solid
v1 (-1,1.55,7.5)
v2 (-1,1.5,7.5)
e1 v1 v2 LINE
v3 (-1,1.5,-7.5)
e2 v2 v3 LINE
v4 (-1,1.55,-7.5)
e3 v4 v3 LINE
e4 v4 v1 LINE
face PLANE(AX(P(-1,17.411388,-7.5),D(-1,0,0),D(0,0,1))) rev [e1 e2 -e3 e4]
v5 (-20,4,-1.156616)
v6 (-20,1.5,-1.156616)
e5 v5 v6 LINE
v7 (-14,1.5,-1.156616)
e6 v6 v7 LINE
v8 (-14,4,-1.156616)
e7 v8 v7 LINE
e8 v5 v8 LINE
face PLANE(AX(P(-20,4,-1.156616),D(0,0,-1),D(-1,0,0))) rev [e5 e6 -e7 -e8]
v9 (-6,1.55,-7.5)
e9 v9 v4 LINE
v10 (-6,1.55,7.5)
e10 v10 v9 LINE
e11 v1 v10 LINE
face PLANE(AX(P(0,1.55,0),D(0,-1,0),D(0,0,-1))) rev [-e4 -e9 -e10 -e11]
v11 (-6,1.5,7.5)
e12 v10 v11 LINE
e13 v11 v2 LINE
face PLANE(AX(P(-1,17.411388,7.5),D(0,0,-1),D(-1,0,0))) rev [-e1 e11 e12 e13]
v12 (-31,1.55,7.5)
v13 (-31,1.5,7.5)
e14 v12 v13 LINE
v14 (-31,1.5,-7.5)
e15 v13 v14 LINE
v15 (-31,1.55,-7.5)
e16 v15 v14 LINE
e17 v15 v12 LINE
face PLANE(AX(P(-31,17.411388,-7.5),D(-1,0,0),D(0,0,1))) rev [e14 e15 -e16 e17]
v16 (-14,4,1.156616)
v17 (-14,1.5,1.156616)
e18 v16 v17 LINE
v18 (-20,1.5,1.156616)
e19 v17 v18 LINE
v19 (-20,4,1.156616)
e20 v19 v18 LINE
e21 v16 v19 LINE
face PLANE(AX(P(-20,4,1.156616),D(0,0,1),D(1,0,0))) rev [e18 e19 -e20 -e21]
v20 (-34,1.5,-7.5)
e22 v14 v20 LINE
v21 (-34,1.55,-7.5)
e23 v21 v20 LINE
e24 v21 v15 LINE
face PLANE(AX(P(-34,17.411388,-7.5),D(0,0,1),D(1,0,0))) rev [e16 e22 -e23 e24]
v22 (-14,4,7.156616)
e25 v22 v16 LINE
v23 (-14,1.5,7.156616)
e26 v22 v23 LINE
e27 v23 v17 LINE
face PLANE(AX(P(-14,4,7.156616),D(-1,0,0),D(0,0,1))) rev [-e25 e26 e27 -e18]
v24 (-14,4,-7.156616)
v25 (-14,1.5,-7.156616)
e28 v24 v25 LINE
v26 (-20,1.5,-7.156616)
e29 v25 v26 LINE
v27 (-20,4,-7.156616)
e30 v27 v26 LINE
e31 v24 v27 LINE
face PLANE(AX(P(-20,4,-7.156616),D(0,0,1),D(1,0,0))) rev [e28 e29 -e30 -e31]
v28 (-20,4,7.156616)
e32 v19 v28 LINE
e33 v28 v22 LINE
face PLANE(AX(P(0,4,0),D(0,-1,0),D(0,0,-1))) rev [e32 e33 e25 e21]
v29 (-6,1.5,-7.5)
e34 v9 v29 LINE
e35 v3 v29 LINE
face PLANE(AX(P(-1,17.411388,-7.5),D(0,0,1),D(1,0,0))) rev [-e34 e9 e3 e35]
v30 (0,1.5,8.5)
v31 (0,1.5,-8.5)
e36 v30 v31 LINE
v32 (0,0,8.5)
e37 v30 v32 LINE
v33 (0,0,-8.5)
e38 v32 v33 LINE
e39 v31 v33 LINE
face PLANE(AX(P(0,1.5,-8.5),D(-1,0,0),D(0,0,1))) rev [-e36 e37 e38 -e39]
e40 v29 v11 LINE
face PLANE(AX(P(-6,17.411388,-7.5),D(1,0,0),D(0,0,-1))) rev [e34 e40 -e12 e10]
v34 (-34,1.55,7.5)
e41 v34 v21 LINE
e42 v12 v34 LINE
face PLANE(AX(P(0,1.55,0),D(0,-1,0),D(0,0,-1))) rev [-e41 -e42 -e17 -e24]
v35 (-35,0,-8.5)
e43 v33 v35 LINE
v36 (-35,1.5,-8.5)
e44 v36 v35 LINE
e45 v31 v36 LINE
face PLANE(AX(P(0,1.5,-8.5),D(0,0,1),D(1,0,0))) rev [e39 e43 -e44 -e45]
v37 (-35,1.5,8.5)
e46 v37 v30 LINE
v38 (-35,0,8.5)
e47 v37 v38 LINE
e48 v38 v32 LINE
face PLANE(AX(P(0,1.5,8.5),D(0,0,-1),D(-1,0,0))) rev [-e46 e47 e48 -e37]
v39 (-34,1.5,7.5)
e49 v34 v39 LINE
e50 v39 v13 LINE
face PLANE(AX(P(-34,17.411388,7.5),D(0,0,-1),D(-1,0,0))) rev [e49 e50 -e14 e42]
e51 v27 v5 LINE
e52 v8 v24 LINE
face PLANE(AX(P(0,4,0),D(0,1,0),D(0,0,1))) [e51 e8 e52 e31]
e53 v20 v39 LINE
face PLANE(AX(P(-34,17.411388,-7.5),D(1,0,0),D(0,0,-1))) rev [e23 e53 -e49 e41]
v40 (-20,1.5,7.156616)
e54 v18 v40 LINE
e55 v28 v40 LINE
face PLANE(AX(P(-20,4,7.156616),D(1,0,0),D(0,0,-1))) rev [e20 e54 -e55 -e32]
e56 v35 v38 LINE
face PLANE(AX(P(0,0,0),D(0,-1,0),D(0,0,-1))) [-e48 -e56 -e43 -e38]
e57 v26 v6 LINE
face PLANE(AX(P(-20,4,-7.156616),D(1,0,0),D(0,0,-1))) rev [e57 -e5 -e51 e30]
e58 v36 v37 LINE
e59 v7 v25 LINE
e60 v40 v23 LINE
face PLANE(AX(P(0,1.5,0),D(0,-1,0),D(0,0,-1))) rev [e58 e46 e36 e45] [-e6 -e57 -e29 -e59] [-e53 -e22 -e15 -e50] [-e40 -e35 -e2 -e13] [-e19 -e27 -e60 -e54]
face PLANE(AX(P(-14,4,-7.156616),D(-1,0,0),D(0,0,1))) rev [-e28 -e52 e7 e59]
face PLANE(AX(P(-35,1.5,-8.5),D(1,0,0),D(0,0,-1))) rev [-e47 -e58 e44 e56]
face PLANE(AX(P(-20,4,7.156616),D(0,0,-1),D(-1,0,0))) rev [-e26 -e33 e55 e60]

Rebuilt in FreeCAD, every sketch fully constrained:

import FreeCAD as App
import Part
import Sketcher
from FreeCAD import Vector
Q = App.Units.Quantity

doc = App.newDocument("Part")
body = doc.addObject("PartDesign::Body", "Body")

# Sketch on XZ plane
sketch1 = body.newObject("Sketcher::SketchObject", "Sketch")
sketch1.AttachmentSupport = (doc.getObject("XZ_Plane"), [""])
sketch1.MapMode = "FlatFace"
sketch1.addGeometry([
    Part.LineSegment(Vector(-35, -8, 0), Vector(-35, 8, 0)),
    Part.LineSegment(Vector(-35, 8, 0), Vector(0, 8, 0)),
    Part.LineSegment(Vector(0, 8, 0), Vector(0, -8, 0)),
    Part.LineSegment(Vector(0, -8, 0), Vector(-35, -8, 0)),
], False)
sketch1.addConstraint([
    Sketcher.Constraint("Coincident", 0, 2, 1, 1),
    Sketcher.Constraint("Coincident", 1, 2, 2, 1),
    Sketcher.Constraint("Coincident", 2, 2, 3, 1),
    Sketcher.Constraint("Coincident", 3, 2, 0, 1),
    Sketcher.Constraint("Vertical", 0),
    Sketcher.Constraint("Horizontal", 1),
    Sketcher.Constraint("Vertical", 2),
    Sketcher.Constraint("Horizontal", 3),
    Sketcher.Constraint("Symmetric", 1, 2, 2, 2, -1, 1),
    Sketcher.Constraint("DistanceX", 1, 1, 1, 2, Q("35 mm")),
    Sketcher.Constraint("DistanceY", 0, 1, 0, 2, Q("17 mm")),
])
pad1 = body.newObject("PartDesign::Pad", "Pad")
pad1.Profile = sketch1
pad1.Length = 1.5
pad1.Reversed = True

# Sketch on XZ plane
sketch2 = body.newObject("Sketcher::SketchObject", "Sketch001")
sketch2.AttachmentSupport = (doc.getObject("XZ_Plane"), [""])
sketch2.MapMode = "FlatFace"
sketch2.addGeometry([
    Part.LineSegment(Vector(-20, -7, 0), Vector(-20, -1, 0)),  # 0
    Part.LineSegment(Vector(-20, -1, 0), Vector(-14, -1, 0)),  # 1
    Part.LineSegment(Vector(-14, -1, 0), Vector(-14, -7, 0)),  # 2
    Part.LineSegment(Vector(-14, -7, 0), Vector(-20, -7, 0)),  # 3
    Part.LineSegment(Vector(-20, 1, 0), Vector(-20, 7, 0)),  # 4
    Part.LineSegment(Vector(-20, 7, 0), Vector(-14, 7, 0)),  # 5
    Part.LineSegment(Vector(-14, 7, 0), Vector(-14, 1, 0)),  # 6
    Part.LineSegment(Vector(-14, 1, 0), Vector(-20, 1, 0)),  # 7
], False)
sketch2.addConstraint([
    Sketcher.Constraint("Coincident", 0, 2, 1, 1),
    Sketcher.Constraint("Coincident", 1, 2, 2, 1),
    Sketcher.Constraint("Coincident", 2, 2, 3, 1),
    Sketcher.Constraint("Coincident", 3, 2, 0, 1),
    Sketcher.Constraint("Coincident", 4, 2, 5, 1),
    Sketcher.Constraint("Coincident", 5, 2, 6, 1),
    Sketcher.Constraint("Coincident", 6, 2, 7, 1),
    Sketcher.Constraint("Coincident", 7, 2, 4, 1),
    Sketcher.Constraint("Vertical", 0),
    Sketcher.Constraint("Horizontal", 1),
    Sketcher.Constraint("Vertical", 2),
    Sketcher.Constraint("Horizontal", 3),
    Sketcher.Constraint("Vertical", 4),
    Sketcher.Constraint("Horizontal", 5),
    Sketcher.Constraint("Vertical", 6),
    Sketcher.Constraint("Horizontal", 7),
    Sketcher.Constraint("Symmetric", 3, 2, 4, 2, -1),
    Sketcher.Constraint("Symmetric", 1, 2, 6, 2, -1),
    Sketcher.Constraint("Equal", 7, 0),
    Sketcher.Constraint("DistanceX", 1, 1, 1, 2, Q("6 mm")),
    Sketcher.Constraint("DistanceX", 0, 2, -1, 1, Q("20 mm")),
    Sketcher.Constraint("DistanceY", 0, 2, 4, 2, Q("8.313231 mm")),
])
pad2 = body.newObject("PartDesign::Pad", "Pad001")
pad2.Profile = sketch2
pad2.Length = 4
pad2.Reversed = True

# Sketch on XZ plane
sketch3 = body.newObject("Sketcher::SketchObject", "Sketch002")
sketch3.AttachmentSupport = (doc.getObject("XZ_Plane"), [""])
sketch3.MapMode = "FlatFace"
sketch3.addGeometry([
    Part.LineSegment(Vector(-6, -7.5, 0), Vector(-6, 7.5, 0)),  # 0
    Part.LineSegment(Vector(-6, 7.5, 0), Vector(-1, 7.5, 0)),  # 1
    Part.LineSegment(Vector(-1, 7.5, 0), Vector(-1, -7.5, 0)),  # 2
    Part.LineSegment(Vector(-1, -7.5, 0), Vector(-6, -7.5, 0)),  # 3
    Part.LineSegment(Vector(-34, -7.5, 0), Vector(-34, 7.5, 0)),  # 4
    Part.LineSegment(Vector(-34, 7.5, 0), Vector(-31, 7.5, 0)),  # 5
    Part.LineSegment(Vector(-31, 7.5, 0), Vector(-31, -7.5, 0)),  # 6
    Part.LineSegment(Vector(-31, -7.5, 0), Vector(-34, -7.5, 0)),  # 7
], False)
sketch3.addConstraint([
    Sketcher.Constraint("Coincident", 0, 2, 1, 1),
    Sketcher.Constraint("Coincident", 1, 2, 2, 1),
    Sketcher.Constraint("Coincident", 2, 2, 3, 1),
    Sketcher.Constraint("Coincident", 3, 2, 0, 1),
    Sketcher.Constraint("Coincident", 4, 2, 5, 1),
    Sketcher.Constraint("Coincident", 5, 2, 6, 1),
    Sketcher.Constraint("Coincident", 6, 2, 7, 1),
    Sketcher.Constraint("Coincident", 7, 2, 4, 1),
    Sketcher.Constraint("Vertical", 0),
    Sketcher.Constraint("Horizontal", 1),
    Sketcher.Constraint("Vertical", 2),
    Sketcher.Constraint("Horizontal", 3),
    Sketcher.Constraint("Vertical", 4),
    Sketcher.Constraint("Horizontal", 5),
    Sketcher.Constraint("Vertical", 6),
    Sketcher.Constraint("Horizontal", 7),
    Sketcher.Constraint("Horizontal", 1, 2, 4, 2),
    Sketcher.Constraint("Horizontal", 3, 2, 6, 2),
    Sketcher.Constraint("DistanceX", 1, 1, 1, 2, Q("5 mm")),
    Sketcher.Constraint("DistanceX", 5, 1, 5, 2, Q("3 mm")),
    Sketcher.Constraint("DistanceY", 0, 1, 0, 2, Q("15 mm")),
    Sketcher.Constraint("DistanceX", 0, 2, -1, 1, Q("6 mm")),
    Sketcher.Constraint("DistanceX", 4, 2, -1, 1, Q("34 mm")),
    Sketcher.Constraint("DistanceY", -1, 1, 0, 2, Q("7.5 mm")),
])
pad3 = body.newObject("PartDesign::Pad", "Pad002")
pad3.Profile = sketch3
pad3.Length = 1.55
pad3.Reversed = True

doc.recompute()
